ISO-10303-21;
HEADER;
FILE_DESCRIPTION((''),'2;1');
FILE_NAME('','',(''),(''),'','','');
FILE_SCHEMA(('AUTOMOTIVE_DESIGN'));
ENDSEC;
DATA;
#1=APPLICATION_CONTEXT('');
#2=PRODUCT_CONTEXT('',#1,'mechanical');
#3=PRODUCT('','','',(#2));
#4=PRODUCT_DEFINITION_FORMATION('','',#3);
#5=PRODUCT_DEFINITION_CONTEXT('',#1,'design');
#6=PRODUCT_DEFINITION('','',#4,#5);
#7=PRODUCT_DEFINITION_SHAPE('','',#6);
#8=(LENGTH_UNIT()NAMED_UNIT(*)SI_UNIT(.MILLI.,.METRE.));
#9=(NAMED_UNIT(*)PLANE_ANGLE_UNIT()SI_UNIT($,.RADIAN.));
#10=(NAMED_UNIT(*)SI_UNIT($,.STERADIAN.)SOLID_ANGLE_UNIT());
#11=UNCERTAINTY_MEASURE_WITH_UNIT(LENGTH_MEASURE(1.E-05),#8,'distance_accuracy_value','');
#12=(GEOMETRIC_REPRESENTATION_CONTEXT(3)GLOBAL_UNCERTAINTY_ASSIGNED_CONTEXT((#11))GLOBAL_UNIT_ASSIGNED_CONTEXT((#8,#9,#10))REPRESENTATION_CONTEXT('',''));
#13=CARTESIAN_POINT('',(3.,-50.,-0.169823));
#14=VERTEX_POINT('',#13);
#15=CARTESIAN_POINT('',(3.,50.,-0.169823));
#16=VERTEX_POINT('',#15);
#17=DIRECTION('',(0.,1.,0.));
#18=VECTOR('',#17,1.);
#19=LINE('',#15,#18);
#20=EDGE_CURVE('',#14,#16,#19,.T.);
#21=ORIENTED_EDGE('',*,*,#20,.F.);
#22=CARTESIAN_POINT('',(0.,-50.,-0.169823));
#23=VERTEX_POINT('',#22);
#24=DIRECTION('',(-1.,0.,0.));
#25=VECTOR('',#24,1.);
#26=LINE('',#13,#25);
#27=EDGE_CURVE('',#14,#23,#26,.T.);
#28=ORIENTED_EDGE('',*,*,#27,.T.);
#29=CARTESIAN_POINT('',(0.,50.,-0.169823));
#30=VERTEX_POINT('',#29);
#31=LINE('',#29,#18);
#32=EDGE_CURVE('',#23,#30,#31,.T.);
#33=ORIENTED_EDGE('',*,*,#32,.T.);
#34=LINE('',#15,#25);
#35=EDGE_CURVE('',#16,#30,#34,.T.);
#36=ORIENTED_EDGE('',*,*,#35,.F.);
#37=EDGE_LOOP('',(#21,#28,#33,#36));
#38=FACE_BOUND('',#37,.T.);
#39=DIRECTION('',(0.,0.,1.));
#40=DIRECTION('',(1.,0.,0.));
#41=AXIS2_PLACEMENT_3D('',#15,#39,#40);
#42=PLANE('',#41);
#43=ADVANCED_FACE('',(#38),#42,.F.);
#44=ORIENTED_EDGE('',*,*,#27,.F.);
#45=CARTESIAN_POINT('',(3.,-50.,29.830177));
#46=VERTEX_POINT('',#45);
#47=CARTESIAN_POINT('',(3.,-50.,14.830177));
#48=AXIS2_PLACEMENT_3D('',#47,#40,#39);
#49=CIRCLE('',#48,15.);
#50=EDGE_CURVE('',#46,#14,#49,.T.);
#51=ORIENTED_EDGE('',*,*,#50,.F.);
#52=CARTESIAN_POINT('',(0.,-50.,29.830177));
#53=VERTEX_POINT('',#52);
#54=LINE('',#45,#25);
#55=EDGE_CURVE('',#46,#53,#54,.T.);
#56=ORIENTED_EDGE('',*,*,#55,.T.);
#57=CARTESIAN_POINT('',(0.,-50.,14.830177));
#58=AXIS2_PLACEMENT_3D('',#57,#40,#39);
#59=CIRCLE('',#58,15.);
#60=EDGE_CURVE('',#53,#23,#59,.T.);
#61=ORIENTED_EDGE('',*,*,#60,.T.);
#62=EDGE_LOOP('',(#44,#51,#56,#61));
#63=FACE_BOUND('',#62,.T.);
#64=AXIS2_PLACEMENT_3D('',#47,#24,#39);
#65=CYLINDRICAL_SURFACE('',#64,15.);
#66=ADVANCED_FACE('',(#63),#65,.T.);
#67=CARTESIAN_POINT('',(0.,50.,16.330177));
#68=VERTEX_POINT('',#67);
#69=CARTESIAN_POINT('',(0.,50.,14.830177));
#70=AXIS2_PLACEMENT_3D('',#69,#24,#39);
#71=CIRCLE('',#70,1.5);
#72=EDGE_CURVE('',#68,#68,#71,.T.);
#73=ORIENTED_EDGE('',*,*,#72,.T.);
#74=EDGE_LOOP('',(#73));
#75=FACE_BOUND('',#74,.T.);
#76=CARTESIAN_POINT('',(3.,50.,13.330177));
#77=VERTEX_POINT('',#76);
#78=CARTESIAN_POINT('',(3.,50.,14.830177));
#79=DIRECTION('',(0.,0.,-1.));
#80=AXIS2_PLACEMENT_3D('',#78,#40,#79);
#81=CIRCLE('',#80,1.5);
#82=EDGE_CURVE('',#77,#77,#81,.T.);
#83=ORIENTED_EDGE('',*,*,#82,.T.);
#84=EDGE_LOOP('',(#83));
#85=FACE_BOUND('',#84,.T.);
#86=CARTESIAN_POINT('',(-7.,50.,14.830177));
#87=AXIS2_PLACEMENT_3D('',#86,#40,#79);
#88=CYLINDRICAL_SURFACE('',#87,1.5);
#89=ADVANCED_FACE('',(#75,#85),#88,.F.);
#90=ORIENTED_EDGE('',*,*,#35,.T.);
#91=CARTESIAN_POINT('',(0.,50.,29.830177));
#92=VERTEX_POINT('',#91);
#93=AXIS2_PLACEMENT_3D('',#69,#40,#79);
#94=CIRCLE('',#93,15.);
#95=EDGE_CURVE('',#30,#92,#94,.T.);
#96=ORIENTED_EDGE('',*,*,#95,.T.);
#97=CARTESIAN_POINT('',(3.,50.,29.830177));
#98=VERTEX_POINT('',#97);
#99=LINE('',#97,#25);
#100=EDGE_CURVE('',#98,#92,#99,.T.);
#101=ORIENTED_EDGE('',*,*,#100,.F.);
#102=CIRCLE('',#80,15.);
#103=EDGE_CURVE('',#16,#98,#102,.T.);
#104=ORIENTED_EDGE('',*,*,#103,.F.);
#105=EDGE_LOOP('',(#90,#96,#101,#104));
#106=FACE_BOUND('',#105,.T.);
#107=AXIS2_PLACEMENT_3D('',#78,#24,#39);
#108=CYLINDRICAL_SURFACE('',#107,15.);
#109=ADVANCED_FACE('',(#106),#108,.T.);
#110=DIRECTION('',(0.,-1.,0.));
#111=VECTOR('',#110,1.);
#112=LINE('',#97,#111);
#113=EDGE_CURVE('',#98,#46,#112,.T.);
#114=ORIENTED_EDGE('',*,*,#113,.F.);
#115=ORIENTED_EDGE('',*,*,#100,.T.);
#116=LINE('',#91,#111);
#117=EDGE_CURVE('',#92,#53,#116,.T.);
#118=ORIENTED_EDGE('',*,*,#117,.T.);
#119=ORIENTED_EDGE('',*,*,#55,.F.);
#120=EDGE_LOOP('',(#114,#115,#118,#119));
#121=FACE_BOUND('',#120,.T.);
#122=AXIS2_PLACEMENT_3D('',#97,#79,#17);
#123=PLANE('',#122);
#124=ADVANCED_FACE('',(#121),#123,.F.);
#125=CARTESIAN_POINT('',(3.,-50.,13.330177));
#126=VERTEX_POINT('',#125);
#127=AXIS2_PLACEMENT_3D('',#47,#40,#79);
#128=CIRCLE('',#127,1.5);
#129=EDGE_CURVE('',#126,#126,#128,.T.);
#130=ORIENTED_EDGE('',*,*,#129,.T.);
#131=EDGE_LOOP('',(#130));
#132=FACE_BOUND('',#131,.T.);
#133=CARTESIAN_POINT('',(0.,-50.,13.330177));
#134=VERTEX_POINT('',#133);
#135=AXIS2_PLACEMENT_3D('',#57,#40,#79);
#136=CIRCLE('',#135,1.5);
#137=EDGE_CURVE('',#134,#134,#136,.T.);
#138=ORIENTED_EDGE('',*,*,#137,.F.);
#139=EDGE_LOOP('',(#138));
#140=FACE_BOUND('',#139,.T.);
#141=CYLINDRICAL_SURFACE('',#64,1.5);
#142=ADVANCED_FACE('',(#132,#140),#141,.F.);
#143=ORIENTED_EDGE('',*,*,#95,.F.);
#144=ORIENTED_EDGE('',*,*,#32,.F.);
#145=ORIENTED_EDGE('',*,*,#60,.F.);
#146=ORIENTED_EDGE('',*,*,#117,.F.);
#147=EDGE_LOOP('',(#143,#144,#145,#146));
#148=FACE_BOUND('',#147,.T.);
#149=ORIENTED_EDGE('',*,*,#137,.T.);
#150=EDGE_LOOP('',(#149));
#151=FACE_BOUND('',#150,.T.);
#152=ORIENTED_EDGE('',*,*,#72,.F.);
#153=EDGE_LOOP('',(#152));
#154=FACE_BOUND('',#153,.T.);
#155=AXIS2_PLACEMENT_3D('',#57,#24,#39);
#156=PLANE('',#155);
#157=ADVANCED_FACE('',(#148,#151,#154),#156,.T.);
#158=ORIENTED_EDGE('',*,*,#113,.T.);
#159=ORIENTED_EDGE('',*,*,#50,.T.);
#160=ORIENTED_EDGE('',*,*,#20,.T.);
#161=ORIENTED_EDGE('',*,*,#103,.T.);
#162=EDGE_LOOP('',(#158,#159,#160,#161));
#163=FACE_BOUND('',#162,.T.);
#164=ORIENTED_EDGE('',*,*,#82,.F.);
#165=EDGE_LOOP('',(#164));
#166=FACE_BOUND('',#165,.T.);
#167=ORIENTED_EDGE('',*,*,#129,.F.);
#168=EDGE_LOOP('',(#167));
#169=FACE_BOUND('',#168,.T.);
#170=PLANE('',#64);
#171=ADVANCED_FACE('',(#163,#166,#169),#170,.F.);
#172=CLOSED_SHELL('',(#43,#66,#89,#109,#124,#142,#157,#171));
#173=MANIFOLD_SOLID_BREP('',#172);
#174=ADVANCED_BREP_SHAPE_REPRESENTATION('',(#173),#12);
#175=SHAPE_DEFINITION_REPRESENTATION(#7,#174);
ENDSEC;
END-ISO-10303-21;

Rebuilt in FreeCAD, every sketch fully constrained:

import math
import FreeCAD as App
import Part
import Sketcher

V = App.Vector

doc = App.newDocument("Part")
body = doc.addObject("PartDesign::Body", "Body")

# Sketch on YZ plane
sketch1 = body.newObject("Sketcher::SketchObject", "Sketch")
sketch1.AttachmentSupport = (doc.getObject("YZ_Plane"), [""])
sketch1.MapMode = "FlatFace"
sketch1.addGeometry(Part.LineSegment(V(-50, -0.2, 0), V(50, -0.2, 0)), False)
sketch1.addGeometry(Part.ArcOfCircle(Part.Circle(V(50, 14.8, 0), V(0, 0, 1), 15), math.radians(-90), math.radians(90)), False)
sketch1.addGeometry(Part.LineSegment(V(50, 29.8, 0), V(-50, 29.8, 0)), False)
sketch1.addGeometry(Part.ArcOfCircle(Part.Circle(V(-50, 14.8, 0), V(0, 0, 1), 15), math.radians(90), math.radians(270)), False)
sketch1.addGeometry(Part.Circle(V(-50, 14.8, 0), V(0, 0, 1), 1.5), False)
sketch1.addConstraint(Sketcher.Constraint("Tangent", 0, 2, 1, 1))
sketch1.addConstraint(Sketcher.Constraint("Tangent", 1, 2, 2, 1))
sketch1.addConstraint(Sketcher.Constraint("Tangent", 2, 2, 3, 1))
sketch1.addConstraint(Sketcher.Constraint("Tangent", 3, 2, 0, 1))
sketch1.addConstraint(Sketcher.Constraint("Horizontal", 0))
sketch1.addConstraint(Sketcher.Constraint("Horizontal", 2))
sketch1.addConstraint(Sketcher.Constraint("Coincident", 4, 3, 3, 3))
sketch1.addConstraint(Sketcher.Constraint("Diameter", 4, 3.0))
sketch1.addConstraint(Sketcher.Constraint("Radius", 1, 15.0))
sketch1.addConstraint(Sketcher.Constraint("DistanceX", 0, 1, 0, 2, 100.0))
sketch1.addConstraint(Sketcher.Constraint("DistanceX", -1, 1, 1, 3, 50.0))
sketch1.addConstraint(Sketcher.Constraint("DistanceY", -1, 1, 1, 3, 14.830177))
pad1 = body.newObject("PartDesign::Pad", "Pad")
pad1.Profile = sketch1
pad1.Length = 3

# Sketch on YZ plane
sketch2 = body.newObject("Sketcher::SketchObject", "Sketch001")
sketch2.AttachmentSupport = (doc.getObject("YZ_Plane"), [""])
sketch2.MapMode = "FlatFace"
sketch2.AttachmentOffset = App.Placement(V(0, 0, 3), App.Rotation())
sketch2.addGeometry(Part.Circle(V(50, 14.8, 0), V(0, 0, 1), 1.5), False)
sketch2.addConstraint(Sketcher.Constraint("Diameter", 0, 3.0))
sketch2.addConstraint(Sketcher.Constraint("DistanceX", -1, 1, 0, 3, 50.0))
sketch2.addConstraint(Sketcher.Constraint("DistanceY", -1, 1, 0, 3, 14.830177))
pocket1 = body.newObject("PartDesign::Pocket", "Pocket")
pocket1.Profile = sketch2
pocket1.Length = 10

doc.recompute()
